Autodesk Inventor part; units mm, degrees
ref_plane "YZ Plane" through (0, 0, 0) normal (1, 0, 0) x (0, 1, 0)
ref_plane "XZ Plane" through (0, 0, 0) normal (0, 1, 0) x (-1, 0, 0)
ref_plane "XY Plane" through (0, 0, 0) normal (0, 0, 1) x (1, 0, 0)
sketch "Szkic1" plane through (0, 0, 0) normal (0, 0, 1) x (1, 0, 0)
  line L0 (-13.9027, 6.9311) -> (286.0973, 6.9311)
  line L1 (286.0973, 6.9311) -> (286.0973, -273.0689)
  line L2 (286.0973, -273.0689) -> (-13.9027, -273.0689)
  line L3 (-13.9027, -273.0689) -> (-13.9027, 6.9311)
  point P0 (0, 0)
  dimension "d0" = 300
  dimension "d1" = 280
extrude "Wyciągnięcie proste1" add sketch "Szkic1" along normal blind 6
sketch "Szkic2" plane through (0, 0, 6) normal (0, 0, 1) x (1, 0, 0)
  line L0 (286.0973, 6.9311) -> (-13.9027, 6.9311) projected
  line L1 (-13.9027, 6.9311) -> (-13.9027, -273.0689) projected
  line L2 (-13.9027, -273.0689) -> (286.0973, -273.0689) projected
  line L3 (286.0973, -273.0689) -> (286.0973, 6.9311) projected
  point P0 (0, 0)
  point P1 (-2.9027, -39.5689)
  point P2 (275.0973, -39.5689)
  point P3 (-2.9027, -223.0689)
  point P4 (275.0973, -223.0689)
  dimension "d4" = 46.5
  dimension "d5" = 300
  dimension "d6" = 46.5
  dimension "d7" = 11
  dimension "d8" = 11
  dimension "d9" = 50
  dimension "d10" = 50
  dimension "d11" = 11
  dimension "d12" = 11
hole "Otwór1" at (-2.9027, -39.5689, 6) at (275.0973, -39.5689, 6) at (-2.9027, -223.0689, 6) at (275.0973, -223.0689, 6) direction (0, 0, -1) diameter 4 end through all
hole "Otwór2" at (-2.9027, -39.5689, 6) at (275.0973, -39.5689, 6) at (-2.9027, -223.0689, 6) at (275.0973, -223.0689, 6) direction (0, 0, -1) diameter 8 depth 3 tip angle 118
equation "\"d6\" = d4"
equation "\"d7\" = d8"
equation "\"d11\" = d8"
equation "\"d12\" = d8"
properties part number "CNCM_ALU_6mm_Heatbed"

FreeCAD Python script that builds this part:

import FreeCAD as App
import Part
import Sketcher
from FreeCAD import Vector
Q = App.Units.Quantity

doc = App.newDocument("Part")
body = doc.addObject("PartDesign::Body", "Body")

sketch1 = body.newObject("Sketcher::SketchObject", "Sketch")
sketch1.AttachmentSupport = (doc.getObject("XY_Plane"), [""])
sketch1.MapMode = "FlatFace"
sketch1.addGeometry([
    Part.LineSegment(Vector(286, 7, 0), Vector(-14, 7, 0)),
    Part.LineSegment(Vector(-14, 7, 0), Vector(-14, -273, 0)),
    Part.LineSegment(Vector(-14, -273, 0), Vector(286, -273, 0)),
    Part.LineSegment(Vector(286, -273, 0), Vector(286, 7, 0)),
], False)
sketch1.addConstraint([
    Sketcher.Constraint("Coincident", 0, 2, 1, 1),
    Sketcher.Constraint("Coincident", 1, 2, 2, 1),
    Sketcher.Constraint("Coincident", 2, 2, 3, 1),
    Sketcher.Constraint("Coincident", 3, 2, 0, 1),
    Sketcher.Constraint("Horizontal", 0),
    Sketcher.Constraint("Vertical", 1),
    Sketcher.Constraint("Horizontal", 2),
    Sketcher.Constraint("Vertical", 3),
    Sketcher.Constraint("DistanceX", 0, 2, 0, 1, Q("300 mm")),
    Sketcher.Constraint("DistanceY", 1, 2, 1, 1, Q("280 mm")),
    Sketcher.Constraint("DistanceY", -1, 1, 0, 2, Q("6.931 mm")),
    Sketcher.Constraint("DistanceX", 0, 2, -1, 1, Q("13.9027 mm")),
])
pad1 = body.newObject("PartDesign::Pad", "Pad")
pad1.Profile = sketch1
pad1.Length = 6

sketch2 = body.newObject("Sketcher::SketchObject", "Sketch001")
sketch2.AttachmentSupport = (doc.getObject("XY_Plane"), [""])
sketch2.MapMode = "FlatFace"
sketch2.AttachmentOffset = App.Placement(Vector(0, 0, 6), App.Rotation())
sketch2.addGeometry([
    Part.Circle(Vector(-2.9, -39.6, 0), Vector(0, 0, 1), 2),
    Part.Circle(Vector(275.1, -39.6, 0), Vector(0, 0, 1), 2),
    Part.Circle(Vector(-2.9, -223.1, 0), Vector(0, 0, 1), 2),
    Part.Circle(Vector(275.1, -223.1, 0), Vector(0, 0, 1), 2),
], False)
sketch2.addConstraint([
    Sketcher.Constraint("Equal", 0, 1),
    Sketcher.Constraint("Equal", 1, 2),
    Sketcher.Constraint("Equal", 2, 3),
    Sketcher.Constraint("Horizontal", 0, 3, 1, 3),
    Sketcher.Constraint("Horizontal", 2, 3, 3, 3),
    Sketcher.Constraint("Vertical", 0, 3, 2, 3),
    Sketcher.Constraint("Vertical", 1, 3, 3, 3),
    Sketcher.Constraint("Diameter", 0, Q("4 mm")),
    Sketcher.Constraint("DistanceX", 0, 3, 1, 3, Q("278 mm")),
    Sketcher.Constraint("DistanceY", 2, 3, 0, 3, Q("183.5 mm")),
    Sketcher.Constraint("DistanceY", 0, 3, -1, 1, Q("39.569 mm")),
    Sketcher.Constraint("DistanceX", 0, 3, -1, 1, Q("2.9027 mm")),
])
doc.recompute()
hole = body.newObject("PartDesign::Hole", "Hole")
hole.Profile = sketch2
hole.ThreadType = "None"
hole.Diameter = 4
hole.DepthType = "ThroughAll"

sketch3 = body.newObject("Sketcher::SketchObject", "Sketch002")
sketch3.AttachmentSupport = (doc.getObject("XY_Plane"), [""])
sketch3.MapMode = "FlatFace"
sketch3.AttachmentOffset = App.Placement(Vector(0, 0, 6), App.Rotation())
sketch3.addGeometry([
    Part.Circle(Vector(-2.9, -39.6, 0), Vector(0, 0, 1), 4),
    Part.Circle(Vector(275.1, -39.6, 0), Vector(0, 0, 1), 4),
    Part.Circle(Vector(-2.9, -223.1, 0), Vector(0, 0, 1), 4),
    Part.Circle(Vector(275.1, -223.1, 0), Vector(0, 0, 1), 4),
], False)
sketch3.addConstraint([
    Sketcher.Constraint("Equal", 0, 1),
    Sketcher.Constraint("Equal", 1, 2),
    Sketcher.Constraint("Equal", 2, 3),
    Sketcher.Constraint("Horizontal", 0, 3, 1, 3),
    Sketcher.Constraint("Horizontal", 2, 3, 3, 3),
    Sketcher.Constraint("Vertical", 0, 3, 2, 3),
    Sketcher.Constraint("Vertical", 1, 3, 3, 3),
    Sketcher.Constraint("Diameter", 0, Q("8 mm")),
    Sketcher.Constraint("DistanceX", 0, 3, 1, 3, Q("278 mm")),
    Sketcher.Constraint("DistanceY", 2, 3, 0, 3, Q("183.5 mm")),
    Sketcher.Constraint("DistanceY", 0, 3, -1, 1, Q("39.569 mm")),
    Sketcher.Constraint("DistanceX", 0, 3, -1, 1, Q("2.9027 mm")),
])
doc.recompute()
hole2 = body.newObject("PartDesign::Hole", "Hole001")
hole2.Profile = sketch3
hole2.ThreadType = "None"
hole2.Diameter = 8
hole2.DepthType = "Dimension"
hole2.Depth = 3
hole2.DrillPoint = "Angled"
hole2.DrillPointAngle = 118

doc.recompute()
